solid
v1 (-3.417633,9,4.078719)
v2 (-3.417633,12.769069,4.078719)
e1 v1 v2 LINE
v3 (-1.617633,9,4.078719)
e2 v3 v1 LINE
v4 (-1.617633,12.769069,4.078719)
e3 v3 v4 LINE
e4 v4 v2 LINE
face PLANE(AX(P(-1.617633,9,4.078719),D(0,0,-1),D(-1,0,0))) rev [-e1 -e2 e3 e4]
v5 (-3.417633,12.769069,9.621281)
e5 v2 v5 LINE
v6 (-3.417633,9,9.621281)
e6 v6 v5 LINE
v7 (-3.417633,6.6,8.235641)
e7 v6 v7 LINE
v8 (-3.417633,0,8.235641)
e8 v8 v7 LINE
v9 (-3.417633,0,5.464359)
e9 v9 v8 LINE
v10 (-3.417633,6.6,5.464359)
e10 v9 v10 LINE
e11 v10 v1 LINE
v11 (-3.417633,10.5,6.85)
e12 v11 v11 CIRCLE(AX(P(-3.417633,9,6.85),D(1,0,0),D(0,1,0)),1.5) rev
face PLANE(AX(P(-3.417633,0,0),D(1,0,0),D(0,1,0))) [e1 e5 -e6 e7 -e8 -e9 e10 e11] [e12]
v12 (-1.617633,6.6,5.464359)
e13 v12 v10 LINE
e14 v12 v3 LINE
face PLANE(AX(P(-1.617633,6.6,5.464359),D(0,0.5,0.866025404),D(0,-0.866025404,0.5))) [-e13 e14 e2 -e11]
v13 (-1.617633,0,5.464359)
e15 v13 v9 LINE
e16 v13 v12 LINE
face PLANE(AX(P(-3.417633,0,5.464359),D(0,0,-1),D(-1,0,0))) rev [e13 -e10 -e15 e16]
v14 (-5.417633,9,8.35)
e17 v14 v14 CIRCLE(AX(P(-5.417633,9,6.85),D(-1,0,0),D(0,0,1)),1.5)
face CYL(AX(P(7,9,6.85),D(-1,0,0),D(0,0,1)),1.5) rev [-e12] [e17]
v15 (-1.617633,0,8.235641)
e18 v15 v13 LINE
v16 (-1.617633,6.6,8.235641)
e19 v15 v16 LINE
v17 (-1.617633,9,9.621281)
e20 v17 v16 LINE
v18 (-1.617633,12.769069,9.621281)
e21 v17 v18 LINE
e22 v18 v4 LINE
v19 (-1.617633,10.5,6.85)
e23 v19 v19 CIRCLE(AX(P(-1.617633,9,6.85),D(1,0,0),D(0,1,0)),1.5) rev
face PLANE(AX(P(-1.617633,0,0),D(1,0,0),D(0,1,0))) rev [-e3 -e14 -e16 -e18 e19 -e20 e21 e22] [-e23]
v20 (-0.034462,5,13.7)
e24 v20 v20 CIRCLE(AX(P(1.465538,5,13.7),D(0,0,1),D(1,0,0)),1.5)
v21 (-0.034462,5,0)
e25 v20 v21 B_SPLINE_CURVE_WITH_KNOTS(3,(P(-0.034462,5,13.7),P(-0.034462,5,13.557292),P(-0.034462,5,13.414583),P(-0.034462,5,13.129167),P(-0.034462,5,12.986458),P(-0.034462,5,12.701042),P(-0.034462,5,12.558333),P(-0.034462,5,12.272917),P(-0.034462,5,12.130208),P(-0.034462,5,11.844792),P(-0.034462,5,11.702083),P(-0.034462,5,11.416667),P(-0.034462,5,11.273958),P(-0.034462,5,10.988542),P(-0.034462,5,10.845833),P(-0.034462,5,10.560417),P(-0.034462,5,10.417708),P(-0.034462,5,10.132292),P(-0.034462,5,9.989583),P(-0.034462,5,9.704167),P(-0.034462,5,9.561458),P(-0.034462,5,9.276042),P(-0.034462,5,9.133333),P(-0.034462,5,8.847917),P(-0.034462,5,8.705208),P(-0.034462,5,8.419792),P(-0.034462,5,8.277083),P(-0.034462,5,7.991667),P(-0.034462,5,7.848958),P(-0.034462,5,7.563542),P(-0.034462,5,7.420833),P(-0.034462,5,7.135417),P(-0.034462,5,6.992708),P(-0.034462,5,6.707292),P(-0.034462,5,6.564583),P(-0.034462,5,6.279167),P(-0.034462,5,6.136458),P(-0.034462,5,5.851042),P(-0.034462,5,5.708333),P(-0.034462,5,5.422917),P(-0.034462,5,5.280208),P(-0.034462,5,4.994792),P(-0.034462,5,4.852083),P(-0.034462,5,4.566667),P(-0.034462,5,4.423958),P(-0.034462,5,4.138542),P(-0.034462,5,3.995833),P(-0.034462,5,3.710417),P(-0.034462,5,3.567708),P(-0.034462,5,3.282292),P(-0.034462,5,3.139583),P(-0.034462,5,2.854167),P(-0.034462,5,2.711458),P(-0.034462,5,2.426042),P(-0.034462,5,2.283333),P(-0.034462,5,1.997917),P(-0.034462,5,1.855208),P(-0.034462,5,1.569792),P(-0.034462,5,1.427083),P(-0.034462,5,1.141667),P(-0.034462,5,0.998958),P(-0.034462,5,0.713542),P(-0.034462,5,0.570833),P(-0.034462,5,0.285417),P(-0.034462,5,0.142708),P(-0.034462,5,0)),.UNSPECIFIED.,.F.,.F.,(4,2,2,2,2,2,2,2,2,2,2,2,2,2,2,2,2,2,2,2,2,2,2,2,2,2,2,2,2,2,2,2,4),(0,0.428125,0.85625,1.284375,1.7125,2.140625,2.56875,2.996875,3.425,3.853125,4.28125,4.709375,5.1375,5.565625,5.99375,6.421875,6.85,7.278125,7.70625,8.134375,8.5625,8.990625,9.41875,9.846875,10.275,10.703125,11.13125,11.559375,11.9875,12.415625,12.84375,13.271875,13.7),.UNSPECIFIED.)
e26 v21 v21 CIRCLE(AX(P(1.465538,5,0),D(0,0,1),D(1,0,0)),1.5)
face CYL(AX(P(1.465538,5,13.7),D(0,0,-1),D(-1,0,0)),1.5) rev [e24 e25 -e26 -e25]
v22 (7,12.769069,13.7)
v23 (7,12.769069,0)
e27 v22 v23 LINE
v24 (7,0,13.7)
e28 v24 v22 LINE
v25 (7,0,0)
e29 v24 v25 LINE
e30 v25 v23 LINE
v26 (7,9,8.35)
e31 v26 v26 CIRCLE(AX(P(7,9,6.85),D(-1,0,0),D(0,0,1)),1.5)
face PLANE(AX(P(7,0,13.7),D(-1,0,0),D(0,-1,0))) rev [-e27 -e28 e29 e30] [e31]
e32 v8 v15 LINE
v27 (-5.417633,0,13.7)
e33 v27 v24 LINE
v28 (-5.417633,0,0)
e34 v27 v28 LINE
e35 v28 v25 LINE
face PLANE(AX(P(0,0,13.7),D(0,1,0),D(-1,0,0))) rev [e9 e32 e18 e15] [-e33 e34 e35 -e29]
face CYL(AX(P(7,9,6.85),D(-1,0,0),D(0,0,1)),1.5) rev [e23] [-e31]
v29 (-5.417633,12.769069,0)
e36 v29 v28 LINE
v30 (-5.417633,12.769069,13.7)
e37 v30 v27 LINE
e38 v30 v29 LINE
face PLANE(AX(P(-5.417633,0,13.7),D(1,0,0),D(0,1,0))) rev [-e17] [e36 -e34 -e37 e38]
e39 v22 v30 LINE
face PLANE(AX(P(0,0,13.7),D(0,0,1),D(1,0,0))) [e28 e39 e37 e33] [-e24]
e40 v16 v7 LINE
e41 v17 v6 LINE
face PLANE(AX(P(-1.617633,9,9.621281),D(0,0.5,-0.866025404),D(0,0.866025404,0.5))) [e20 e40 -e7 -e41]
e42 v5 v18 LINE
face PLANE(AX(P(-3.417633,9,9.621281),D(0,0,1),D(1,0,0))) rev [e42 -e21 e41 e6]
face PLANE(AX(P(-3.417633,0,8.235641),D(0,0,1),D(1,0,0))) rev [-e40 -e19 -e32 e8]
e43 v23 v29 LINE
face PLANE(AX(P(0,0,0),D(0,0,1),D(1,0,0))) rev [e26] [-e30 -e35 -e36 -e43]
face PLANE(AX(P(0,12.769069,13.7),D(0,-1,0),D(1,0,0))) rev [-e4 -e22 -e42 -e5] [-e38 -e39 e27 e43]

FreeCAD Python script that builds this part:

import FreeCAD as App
import Part
import Sketcher
from FreeCAD import Vector
Q = App.Units.Quantity

doc = App.newDocument("Part")
body = doc.addObject("PartDesign::Body", "Body")

# Sketch on XY plane
sketch1 = body.newObject("Sketcher::SketchObject", "Sketch")
sketch1.AttachmentSupport = (doc.getObject("XY_Plane"), [""])
sketch1.MapMode = "FlatFace"
sketch1.addGeometry(Part.LineSegment(Vector(-5.4, 12.8, 0), Vector(-5.4, 0, 0)), False)
sketch1.addGeometry(Part.LineSegment(Vector(-5.4, 0, 0), Vector(7, 0, 0)), False)
sketch1.addGeometry(Part.LineSegment(Vector(7, 0, 0), Vector(7, 12.8, 0)), False)
sketch1.addGeometry(Part.LineSegment(Vector(7, 12.8, 0), Vector(-5.4, 12.8, 0)), False)
sketch1.addGeometry(Part.Circle(Vector(1.5, 5, 0), Vector(0, 0, 1), 1.5), False)
sketch1.addConstraint(Sketcher.Constraint("Coincident", 0, 2, 1, 1))
sketch1.addConstraint(Sketcher.Constraint("Coincident", 1, 2, 2, 1))
sketch1.addConstraint(Sketcher.Constraint("Coincident", 2, 2, 3, 1))
sketch1.addConstraint(Sketcher.Constraint("Coincident", 3, 2, 0, 1))
sketch1.addConstraint(Sketcher.Constraint("Vertical", 0))
sketch1.addConstraint(Sketcher.Constraint("Horizontal", 1))
sketch1.addConstraint(Sketcher.Constraint("Vertical", 2))
sketch1.addConstraint(Sketcher.Constraint("Horizontal", 3))
sketch1.addConstraint(Sketcher.Constraint("PointOnObject", 0, 2, -1))
sketch1.addConstraint(Sketcher.Constraint("Diameter", 4, 3.0))
sketch1.addConstraint(Sketcher.Constraint("DistanceY", -1, 1, 4, 3, 5.0))
sketch1.addConstraint(Sketcher.Constraint("DistanceX", -1, 1, 1, 2, 7.0))
sketch1.addConstraint(Sketcher.Constraint("DistanceY", 0, 2, 0, 1, 12.769069))
sketch1.addConstraint(Sketcher.Constraint("DistanceX", 1, 1, 1, 2, 12.417633))
sketch1.addConstraint(Sketcher.Constraint("DistanceX", 0, 2, 4, 3, 6.88317))
pad1 = body.newObject("PartDesign::Pad", "Pad")
pad1.Profile = sketch1
pad1.Length = 13.7

# Sketch on YZ plane
sketch2 = body.newObject("Sketcher::SketchObject", "Sketch001")
sketch2.AttachmentSupport = (doc.getObject("YZ_Plane"), [""])
sketch2.MapMode = "FlatFace"
sketch2.AttachmentOffset = App.Placement(Vector(0, 0, -5.417633), App.Rotation())
sketch2.addGeometry(Part.Circle(Vector(9, 6.8, 0), Vector(0, 0, 1), 1.5), False)
sketch2.addConstraint(Sketcher.Constraint("Diameter", 0, 3.0))
sketch2.addConstraint(Sketcher.Constraint("DistanceX", -1, 1, 0, 3, 9.0))
sketch2.addConstraint(Sketcher.Constraint("DistanceY", -1, 1, 0, 3, 6.85))
pocket1 = body.newObject("PartDesign::Pocket", "Pocket")
pocket1.Profile = sketch2
pocket1.Type = "ThroughAll"
pocket1.Reversed = True

# Sketch on YZ plane
sketch3 = body.newObject("Sketcher::SketchObject", "Sketch002")
sketch3.AttachmentSupport = (doc.getObject("YZ_Plane"), [""])
sketch3.MapMode = "FlatFace"
sketch3.AttachmentOffset = App.Placement(Vector(0, 0, -3.417633), App.Rotation())
sketch3.addGeometry(Part.LineSegment(Vector(6.6, 5.5, 0), Vector(9, 4.1, 0)), False)
sketch3.addGeometry(Part.LineSegment(Vector(9, 4.1, 0), Vector(11.4, 5.5, 0)), False)
sketch3.addGeometry(Part.LineSegment(Vector(11.4, 5.5, 0), Vector(11.4, 8.2, 0)), False)
sketch3.addGeometry(Part.LineSegment(Vector(11.4, 8.2, 0), Vector(9, 9.6, 0)), False)
sketch3.addGeometry(Part.LineSegment(Vector(9, 9.6, 0), Vector(6.6, 8.2, 0)), False)
sketch3.addGeometry(Part.LineSegment(Vector(6.6, 8.2, 0), Vector(6.6, 5.5, 0)), False)
sketch3.addConstraint(Sketcher.Constraint("Coincident", 0, 2, 1, 1))
sketch3.addConstraint(Sketcher.Constraint("Coincident", 1, 2, 2, 1))
sketch3.addConstraint(Sketcher.Constraint("Coincident", 2, 2, 3, 1))
sketch3.addConstraint(Sketcher.Constraint("Coincident", 3, 2, 4, 1))
sketch3.addConstraint(Sketcher.Constraint("Coincident", 4, 2, 5, 1))
sketch3.addConstraint(Sketcher.Constraint("Coincident", 5, 2, 0, 1))
sketch3.addConstraint(Sketcher.Constraint("Vertical", 2))
sketch3.addConstraint(Sketcher.Constraint("Vertical", 5))
sketch3.addConstraint(Sketcher.Constraint("Parallel", 0, 3))
sketch3.addConstraint(Sketcher.Constraint("Parallel", 1, 4))
sketch3.addConstraint(Sketcher.Constraint("Horizontal", 2, 2, 4, 2))
sketch3.addConstraint(Sketcher.Constraint("Horizontal", 1, 2, 5, 2))
sketch3.addConstraint(Sketcher.Constraint("Vertical", 0, 2, 3, 2))
sketch3.addConstraint(Sketcher.Constraint("Angle", 0, Q("-30 deg")))
sketch3.addConstraint(Sketcher.Constraint("DistanceX", -1, 1, 0, 2, 9.0))
sketch3.addConstraint(Sketcher.Constraint("DistanceX", -1, 1, 1, 2, 11.4))
sketch3.addConstraint(Sketcher.Constraint("DistanceY", 2, 1, 2, 2, 2.771281))
sketch3.addConstraint(Sketcher.Constraint("DistanceY", -1, 1, 0, 2, 4.078719))
pocket2 = body.newObject("PartDesign::Pocket", "Pocket001")
pocket2.Profile = sketch3
pocket2.Length = 1.8
pocket2.Reversed = True

# Sketch on XZ plane
sketch4 = body.newObject("Sketcher::SketchObject", "Sketch003")
sketch4.AttachmentSupport = (doc.getObject("XZ_Plane"), [""])
sketch4.MapMode = "FlatFace"
sketch4.AttachmentOffset = App.Placement(Vector(0, 0, -12.769069), App.Rotation())
sketch4.addGeometry(Part.LineSegment(Vector(-3.4, 4.1, 0), Vector(-3.4, 9.6, 0)), False)
sketch4.addGeometry(Part.LineSegment(Vector(-3.4, 9.6, 0), Vector(-1.6, 9.6, 0)), False)
sketch4.addGeometry(Part.LineSegment(Vector(-1.6, 9.6, 0), Vector(-1.6, 4.1, 0)), False)
sketch4.addGeometry(Part.LineSegment(Vector(-1.6, 4.1, 0), Vector(-3.4, 4.1, 0)), False)
sketch4.addConstraint(Sketcher.Constraint("Coincident", 0, 2, 1, 1))
sketch4.addConstraint(Sketcher.Constraint("Coincident", 1, 2, 2, 1))
sketch4.addConstraint(Sketcher.Constraint("Coincident", 2, 2, 3, 1))
sketch4.addConstraint(Sketcher.Constraint("Coincident", 3, 2, 0, 1))
sketch4.addConstraint(Sketcher.Constraint("Vertical", 0))
sketch4.addConstraint(Sketcher.Constraint("Horizontal", 1))
sketch4.addConstraint(Sketcher.Constraint("Vertical", 2))
sketch4.addConstraint(Sketcher.Constraint("Horizontal", 3))
sketch4.addConstraint(Sketcher.Constraint("DistanceX", 1, 1, 1, 2, 1.8))
sketch4.addConstraint(Sketcher.Constraint("DistanceY", 0, 1, 0, 2, 5.542563))
sketch4.addConstraint(Sketcher.Constraint("DistanceY", -1, 1, 0, 2, 9.621281))
sketch4.addConstraint(Sketcher.Constraint("DistanceX", 0, 2, -1, 1, 3.417633))
pocket3 = body.newObject("PartDesign::Pocket", "Pocket002")
pocket3.Profile = sketch4
pocket3.Length = 3.769069
pocket3.Reversed = True

# Sketch on XZ plane
sketch5 = body.newObject("Sketcher::SketchObject", "Sketch004")
sketch5.AttachmentSupport = (doc.getObject("XZ_Plane"), [""])
sketch5.MapMode = "FlatFace"
sketch5.AttachmentOffset = App.Placement(Vector(0, 0, -6.6), App.Rotation())
sketch5.addGeometry(Part.LineSegment(Vector(-3.4, 5.5, 0), Vector(-3.4, 8.2, 0)), False)
sketch5.addGeometry(Part.LineSegment(Vector(-3.4, 8.2, 0), Vector(-1.6, 8.2, 0)), False)
sketch5.addGeometry(Part.LineSegment(Vector(-1.6, 8.2, 0), Vector(-1.6, 5.5, 0)), False)
sketch5.addGeometry(Part.LineSegment(Vector(-1.6, 5.5, 0), Vector(-3.4, 5.5, 0)), False)
sketch5.addConstraint(Sketcher.Constraint("Coincident", 0, 2, 1, 1))
sketch5.addConstraint(Sketcher.Constraint("Coincident", 1, 2, 2, 1))
sketch5.addConstraint(Sketcher.Constraint("Coincident", 2, 2, 3, 1))
sketch5.addConstraint(Sketcher.Constraint("Coincident", 3, 2, 0, 1))
sketch5.addConstraint(Sketcher.Constraint("Vertical", 0))
sketch5.addConstraint(Sketcher.Constraint("Horizontal", 1))
sketch5.addConstraint(Sketcher.Constraint("Vertical", 2))
sketch5.addConstraint(Sketcher.Constraint("Horizontal", 3))
sketch5.addConstraint(Sketcher.Constraint("DistanceX", 1, 1, 1, 2, 1.8))
sketch5.addConstraint(Sketcher.Constraint("DistanceY", 0, 1, 0, 2, 2.771281))
sketch5.addConstraint(Sketcher.Constraint("DistanceY", -1, 1, 0, 2, 8.235641))
sketch5.addConstraint(Sketcher.Constraint("DistanceX", 0, 2, -1, 1, 3.417633))
pocket4 = body.newObject("PartDesign::Pocket", "Pocket003")
pocket4.Profile = sketch5
pocket4.Type = "ThroughAll"
pocket4.Reversed = True

doc.recompute()
